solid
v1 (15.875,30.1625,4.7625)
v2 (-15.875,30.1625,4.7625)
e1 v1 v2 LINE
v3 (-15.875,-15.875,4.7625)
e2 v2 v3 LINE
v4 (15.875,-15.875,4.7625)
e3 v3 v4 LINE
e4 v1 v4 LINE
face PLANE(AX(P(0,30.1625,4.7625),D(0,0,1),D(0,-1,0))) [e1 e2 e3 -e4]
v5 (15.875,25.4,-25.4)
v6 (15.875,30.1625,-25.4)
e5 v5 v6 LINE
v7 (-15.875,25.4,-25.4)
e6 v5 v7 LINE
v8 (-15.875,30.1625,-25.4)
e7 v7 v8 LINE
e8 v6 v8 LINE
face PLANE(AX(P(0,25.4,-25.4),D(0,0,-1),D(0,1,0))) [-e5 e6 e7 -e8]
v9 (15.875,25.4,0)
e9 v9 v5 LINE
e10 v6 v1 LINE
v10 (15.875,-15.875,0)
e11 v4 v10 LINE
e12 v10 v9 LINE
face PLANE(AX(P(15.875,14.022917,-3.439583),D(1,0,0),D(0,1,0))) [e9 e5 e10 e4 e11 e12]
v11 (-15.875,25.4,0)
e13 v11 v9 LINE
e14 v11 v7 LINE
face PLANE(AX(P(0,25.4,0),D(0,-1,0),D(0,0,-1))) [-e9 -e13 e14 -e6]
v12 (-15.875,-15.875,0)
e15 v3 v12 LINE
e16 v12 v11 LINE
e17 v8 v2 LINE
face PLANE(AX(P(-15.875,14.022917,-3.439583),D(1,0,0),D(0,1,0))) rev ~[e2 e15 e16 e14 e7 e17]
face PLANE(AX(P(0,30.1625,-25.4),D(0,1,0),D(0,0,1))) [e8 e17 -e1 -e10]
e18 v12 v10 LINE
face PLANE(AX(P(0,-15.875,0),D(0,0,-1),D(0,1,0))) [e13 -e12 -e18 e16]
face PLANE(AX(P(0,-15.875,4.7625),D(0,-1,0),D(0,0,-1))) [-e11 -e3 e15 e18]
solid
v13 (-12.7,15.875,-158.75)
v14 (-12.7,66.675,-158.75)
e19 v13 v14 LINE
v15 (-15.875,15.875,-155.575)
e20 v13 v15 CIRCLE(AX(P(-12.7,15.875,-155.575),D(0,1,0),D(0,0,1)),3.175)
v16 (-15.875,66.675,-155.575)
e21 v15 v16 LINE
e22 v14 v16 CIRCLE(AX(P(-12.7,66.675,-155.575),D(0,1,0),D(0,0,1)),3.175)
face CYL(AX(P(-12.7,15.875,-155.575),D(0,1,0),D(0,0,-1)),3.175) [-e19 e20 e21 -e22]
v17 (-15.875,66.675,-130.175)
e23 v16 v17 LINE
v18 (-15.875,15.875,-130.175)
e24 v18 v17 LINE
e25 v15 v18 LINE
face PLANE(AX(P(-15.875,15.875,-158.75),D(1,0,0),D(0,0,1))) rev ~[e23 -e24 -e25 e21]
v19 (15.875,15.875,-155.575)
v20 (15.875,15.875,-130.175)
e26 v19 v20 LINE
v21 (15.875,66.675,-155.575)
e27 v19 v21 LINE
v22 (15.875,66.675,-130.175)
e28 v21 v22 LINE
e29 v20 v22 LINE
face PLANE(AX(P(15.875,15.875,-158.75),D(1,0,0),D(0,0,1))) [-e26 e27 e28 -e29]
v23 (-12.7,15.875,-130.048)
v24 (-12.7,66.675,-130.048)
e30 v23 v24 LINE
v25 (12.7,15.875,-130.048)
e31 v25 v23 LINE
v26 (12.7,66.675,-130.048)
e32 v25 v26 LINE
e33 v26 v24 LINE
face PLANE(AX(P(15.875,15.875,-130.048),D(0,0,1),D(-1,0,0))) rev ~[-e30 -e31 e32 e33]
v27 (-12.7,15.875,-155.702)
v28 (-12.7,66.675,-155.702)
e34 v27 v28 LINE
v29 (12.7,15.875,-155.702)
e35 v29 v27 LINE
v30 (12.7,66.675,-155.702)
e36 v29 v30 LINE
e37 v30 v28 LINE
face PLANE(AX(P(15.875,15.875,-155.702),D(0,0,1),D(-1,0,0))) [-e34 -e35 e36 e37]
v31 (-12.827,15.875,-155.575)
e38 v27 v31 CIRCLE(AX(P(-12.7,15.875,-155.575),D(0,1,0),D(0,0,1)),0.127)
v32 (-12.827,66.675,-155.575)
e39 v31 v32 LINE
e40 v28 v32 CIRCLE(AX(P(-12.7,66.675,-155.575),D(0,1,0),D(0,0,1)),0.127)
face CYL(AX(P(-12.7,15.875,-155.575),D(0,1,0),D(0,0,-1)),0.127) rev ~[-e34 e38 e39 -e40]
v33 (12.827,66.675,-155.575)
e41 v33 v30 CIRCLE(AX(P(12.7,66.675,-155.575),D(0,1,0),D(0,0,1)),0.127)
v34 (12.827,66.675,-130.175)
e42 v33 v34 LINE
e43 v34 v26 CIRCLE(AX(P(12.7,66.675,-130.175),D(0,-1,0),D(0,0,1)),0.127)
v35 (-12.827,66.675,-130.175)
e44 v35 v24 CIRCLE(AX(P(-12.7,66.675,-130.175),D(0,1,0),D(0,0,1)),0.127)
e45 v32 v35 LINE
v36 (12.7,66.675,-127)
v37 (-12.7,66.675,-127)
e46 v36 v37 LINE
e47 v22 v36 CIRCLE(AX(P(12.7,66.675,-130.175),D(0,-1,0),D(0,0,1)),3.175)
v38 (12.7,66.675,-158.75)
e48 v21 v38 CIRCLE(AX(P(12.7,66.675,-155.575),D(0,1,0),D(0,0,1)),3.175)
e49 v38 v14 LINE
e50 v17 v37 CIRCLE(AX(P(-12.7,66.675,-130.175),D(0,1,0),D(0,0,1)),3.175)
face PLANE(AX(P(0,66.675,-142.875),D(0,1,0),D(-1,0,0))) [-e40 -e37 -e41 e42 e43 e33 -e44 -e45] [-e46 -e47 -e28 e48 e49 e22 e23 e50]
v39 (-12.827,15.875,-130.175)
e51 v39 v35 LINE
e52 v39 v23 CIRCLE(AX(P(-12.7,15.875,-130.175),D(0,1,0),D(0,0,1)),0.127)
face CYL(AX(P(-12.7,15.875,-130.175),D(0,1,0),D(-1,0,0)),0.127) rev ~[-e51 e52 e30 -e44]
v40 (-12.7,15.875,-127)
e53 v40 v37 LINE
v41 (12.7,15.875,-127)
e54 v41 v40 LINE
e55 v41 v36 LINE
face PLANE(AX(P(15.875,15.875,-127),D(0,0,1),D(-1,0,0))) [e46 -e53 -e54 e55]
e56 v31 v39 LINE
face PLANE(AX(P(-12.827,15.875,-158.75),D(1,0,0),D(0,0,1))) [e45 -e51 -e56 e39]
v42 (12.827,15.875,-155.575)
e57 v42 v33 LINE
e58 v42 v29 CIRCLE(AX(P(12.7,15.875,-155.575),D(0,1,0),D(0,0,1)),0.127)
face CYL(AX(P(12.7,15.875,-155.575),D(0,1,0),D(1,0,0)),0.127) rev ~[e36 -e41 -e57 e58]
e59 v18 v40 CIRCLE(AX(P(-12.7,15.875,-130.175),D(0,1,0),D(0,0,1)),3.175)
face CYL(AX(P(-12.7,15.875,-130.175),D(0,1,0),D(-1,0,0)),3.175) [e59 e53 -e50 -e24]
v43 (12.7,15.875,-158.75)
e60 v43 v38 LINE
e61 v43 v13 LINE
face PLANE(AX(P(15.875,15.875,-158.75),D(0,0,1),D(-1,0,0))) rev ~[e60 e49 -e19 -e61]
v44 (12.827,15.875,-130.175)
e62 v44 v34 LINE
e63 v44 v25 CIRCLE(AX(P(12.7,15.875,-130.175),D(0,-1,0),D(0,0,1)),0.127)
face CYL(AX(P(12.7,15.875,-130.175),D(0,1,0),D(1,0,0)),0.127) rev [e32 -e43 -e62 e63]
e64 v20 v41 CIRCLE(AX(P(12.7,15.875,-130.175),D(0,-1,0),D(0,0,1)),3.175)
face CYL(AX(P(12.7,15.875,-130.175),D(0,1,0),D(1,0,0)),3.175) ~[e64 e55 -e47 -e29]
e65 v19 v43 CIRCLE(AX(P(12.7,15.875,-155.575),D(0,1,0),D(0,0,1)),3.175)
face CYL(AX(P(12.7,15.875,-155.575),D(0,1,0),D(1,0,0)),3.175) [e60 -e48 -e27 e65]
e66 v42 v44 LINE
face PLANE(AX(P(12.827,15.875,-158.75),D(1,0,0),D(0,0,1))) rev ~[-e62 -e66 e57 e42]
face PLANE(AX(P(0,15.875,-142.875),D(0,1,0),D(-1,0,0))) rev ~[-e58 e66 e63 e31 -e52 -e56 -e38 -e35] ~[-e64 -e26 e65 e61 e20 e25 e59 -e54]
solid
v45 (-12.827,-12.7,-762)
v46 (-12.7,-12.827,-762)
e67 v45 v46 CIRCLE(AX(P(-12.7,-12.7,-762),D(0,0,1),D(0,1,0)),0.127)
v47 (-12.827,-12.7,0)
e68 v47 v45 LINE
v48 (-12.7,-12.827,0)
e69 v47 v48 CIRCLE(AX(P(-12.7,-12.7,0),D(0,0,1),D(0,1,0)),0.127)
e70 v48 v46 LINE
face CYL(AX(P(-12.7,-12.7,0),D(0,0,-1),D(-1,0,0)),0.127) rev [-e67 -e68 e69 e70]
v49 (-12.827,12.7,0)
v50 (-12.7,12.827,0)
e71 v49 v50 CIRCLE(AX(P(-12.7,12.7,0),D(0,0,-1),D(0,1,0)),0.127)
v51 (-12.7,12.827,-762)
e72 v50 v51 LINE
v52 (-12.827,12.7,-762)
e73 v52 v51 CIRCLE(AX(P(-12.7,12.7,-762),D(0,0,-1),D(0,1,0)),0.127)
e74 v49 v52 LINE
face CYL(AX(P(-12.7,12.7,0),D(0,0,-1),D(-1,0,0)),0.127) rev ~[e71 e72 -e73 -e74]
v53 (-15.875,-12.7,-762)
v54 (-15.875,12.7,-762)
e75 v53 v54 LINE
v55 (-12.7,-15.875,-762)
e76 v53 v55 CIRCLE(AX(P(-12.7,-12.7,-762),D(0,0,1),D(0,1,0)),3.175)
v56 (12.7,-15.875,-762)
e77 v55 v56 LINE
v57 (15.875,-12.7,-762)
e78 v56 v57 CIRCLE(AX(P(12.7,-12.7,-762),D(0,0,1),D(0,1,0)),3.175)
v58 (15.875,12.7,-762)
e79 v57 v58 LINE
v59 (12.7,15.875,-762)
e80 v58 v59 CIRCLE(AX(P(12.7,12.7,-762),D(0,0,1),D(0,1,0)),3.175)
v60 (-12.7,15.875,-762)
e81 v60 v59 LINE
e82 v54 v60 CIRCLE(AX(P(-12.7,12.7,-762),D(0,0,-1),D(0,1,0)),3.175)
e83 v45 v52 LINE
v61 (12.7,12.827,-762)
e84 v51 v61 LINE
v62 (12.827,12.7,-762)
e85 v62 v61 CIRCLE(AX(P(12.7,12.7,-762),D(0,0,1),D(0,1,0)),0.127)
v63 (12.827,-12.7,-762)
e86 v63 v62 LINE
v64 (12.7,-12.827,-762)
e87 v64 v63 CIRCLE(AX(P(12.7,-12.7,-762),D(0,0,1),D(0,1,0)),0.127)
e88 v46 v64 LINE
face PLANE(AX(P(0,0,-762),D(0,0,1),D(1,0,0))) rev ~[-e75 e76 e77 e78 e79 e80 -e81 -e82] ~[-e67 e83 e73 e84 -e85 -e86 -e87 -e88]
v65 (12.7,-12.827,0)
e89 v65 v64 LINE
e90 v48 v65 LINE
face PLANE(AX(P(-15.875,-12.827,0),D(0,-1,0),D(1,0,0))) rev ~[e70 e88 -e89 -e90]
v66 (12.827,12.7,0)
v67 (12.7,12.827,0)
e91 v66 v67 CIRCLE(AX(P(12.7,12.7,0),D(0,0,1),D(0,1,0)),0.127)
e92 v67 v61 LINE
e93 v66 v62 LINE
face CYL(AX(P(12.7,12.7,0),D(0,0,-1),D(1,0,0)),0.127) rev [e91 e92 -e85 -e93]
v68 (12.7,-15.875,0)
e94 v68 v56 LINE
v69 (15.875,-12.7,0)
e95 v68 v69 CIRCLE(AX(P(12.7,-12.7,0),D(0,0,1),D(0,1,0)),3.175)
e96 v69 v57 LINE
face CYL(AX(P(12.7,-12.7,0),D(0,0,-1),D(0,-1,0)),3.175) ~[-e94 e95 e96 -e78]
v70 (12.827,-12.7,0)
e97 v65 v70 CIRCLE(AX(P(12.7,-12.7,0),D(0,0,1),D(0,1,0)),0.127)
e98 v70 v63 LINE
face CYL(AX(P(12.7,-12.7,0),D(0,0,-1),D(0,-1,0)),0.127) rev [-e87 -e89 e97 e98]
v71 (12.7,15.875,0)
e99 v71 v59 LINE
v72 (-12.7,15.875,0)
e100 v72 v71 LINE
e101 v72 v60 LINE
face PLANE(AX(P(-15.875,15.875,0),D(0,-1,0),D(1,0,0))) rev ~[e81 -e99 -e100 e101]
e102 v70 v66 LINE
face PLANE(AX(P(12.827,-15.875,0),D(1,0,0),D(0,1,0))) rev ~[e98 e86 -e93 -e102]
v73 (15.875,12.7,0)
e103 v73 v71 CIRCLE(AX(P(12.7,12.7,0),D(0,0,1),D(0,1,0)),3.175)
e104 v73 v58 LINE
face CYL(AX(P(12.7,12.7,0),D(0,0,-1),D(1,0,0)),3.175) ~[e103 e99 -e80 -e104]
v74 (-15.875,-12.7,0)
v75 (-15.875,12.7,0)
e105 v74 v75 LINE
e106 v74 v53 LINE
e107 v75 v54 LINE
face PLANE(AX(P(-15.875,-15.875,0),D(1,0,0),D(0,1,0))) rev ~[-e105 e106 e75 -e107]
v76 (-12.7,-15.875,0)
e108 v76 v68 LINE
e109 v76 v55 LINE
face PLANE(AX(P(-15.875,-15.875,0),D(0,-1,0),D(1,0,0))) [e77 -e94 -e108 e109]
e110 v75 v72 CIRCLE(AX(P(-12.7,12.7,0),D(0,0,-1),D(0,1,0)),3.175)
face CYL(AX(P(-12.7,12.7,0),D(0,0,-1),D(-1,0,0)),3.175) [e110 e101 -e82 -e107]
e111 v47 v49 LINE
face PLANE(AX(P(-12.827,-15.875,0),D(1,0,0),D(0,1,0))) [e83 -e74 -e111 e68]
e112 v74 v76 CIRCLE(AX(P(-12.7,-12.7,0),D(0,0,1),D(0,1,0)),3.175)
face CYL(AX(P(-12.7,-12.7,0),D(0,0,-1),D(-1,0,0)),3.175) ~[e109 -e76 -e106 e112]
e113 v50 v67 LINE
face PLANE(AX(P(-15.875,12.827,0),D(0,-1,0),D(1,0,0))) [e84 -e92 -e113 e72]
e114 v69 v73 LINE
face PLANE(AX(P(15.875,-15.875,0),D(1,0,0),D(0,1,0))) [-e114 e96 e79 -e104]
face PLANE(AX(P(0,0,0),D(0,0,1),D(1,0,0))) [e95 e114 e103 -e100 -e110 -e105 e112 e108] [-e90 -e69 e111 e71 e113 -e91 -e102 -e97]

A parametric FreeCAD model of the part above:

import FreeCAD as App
import Part
import Sketcher
from FreeCAD import Vector
Q = App.Units.Quantity


def edges_at(feature, points):
    """Names of the edges that pass closest to the given points."""
    edges = feature.Shape.Edges
    near = lambda p: min(range(len(edges)), key=lambda i: edges[i].distToShape(Part.Vertex(*p))[0])
    return sorted({f"Edge{near(p) + 1}" for p in points})


def faces_at(feature, points):
    """Names of the faces that lie closest to the given points."""
    faces = feature.Shape.Faces
    near = lambda p: min(range(len(faces)), key=lambda i: faces[i].distToShape(Part.Vertex(*p))[0])
    return sorted({f"Face{near(p) + 1}" for p in points})

doc = App.newDocument("Part")
body = doc.addObject("PartDesign::Body", "Body")

sketch1 = doc.addObject("Sketcher::SketchObject", "Sketch")
body.addObject(sketch1)
sketch1.AttachmentSupport = (doc.XY_Plane, [""])
sketch1.MapMode = "FlatFace"
sketch1.addGeometry([
    Part.LineSegment(Vector(-16, 16, 0), Vector(-16, -16, 0)),
    Part.LineSegment(Vector(-16, -16, 0), Vector(16, -16, 0)),
    Part.LineSegment(Vector(16, -16, 0), Vector(16, 16, 0)),
    Part.LineSegment(Vector(16, 16, 0), Vector(-16, 16, 0)),
], False)
sketch1.addConstraint([
    Sketcher.Constraint("Coincident", 0, 2, 1, 1),
    Sketcher.Constraint("Coincident", 1, 2, 2, 1),
    Sketcher.Constraint("Coincident", 2, 2, 3, 1),
    Sketcher.Constraint("Coincident", 3, 2, 0, 1),
    Sketcher.Constraint("Vertical", 0),
    Sketcher.Constraint("Horizontal", 1),
    Sketcher.Constraint("Vertical", 2),
    Sketcher.Constraint("Horizontal", 3),
    Sketcher.Constraint("Symmetric", 0, 2, 2, 2, -1, 1),
    Sketcher.Constraint("Equal", 3, 0),
    Sketcher.Constraint("DistanceX", 1, 1, 1, 2, Q("1.25 in")),
])
pad1 = doc.addObject("PartDesign::Pad", "Pad")
body.addObject(pad1)
pad1.Profile = sketch1
pad1.Length = Q("30 in")
pad1.Reversed = True
doc.recompute()

fillet = doc.addObject("PartDesign::Fillet", "Fillet")
body.addObject(fillet)
fillet.Base = (pad1, edges_at(pad1, [
    (-15.875, 15.875, -381),
    (-15.875, -15.875, -381),
    (15.875, 15.875, -381),
    (15.875, -15.875, -381),
]))
fillet.Radius = Q("0.125 in")
doc.recompute()

thickness = doc.addObject("PartDesign::Thickness", "Thickness")
body.addObject(thickness)
thickness.Base = (fillet, faces_at(fillet, [(0, 0, 0), (0, 0, -762)]))
thickness.Value = Q("0.12 in")
thickness.Reversed = True
thickness.Join = "Arc"
body2 = doc.addObject("PartDesign::Body", "Body001")

sketch2 = doc.addObject("Sketcher::SketchObject", "Sketch001")
body2.addObject(sketch2)
sketch2.AttachmentSupport = (doc.getObject("YZ_Plane001"), [""])
sketch2.MapMode = "FlatFace"
sketch2.addGeometry([
    Part.LineSegment(Vector(30.2, 4.8, 0), Vector(-15.9, 4.8, 0)),
    Part.LineSegment(Vector(-15.9, 4.8, 0), Vector(-15.9, 0, 0)),
    Part.LineSegment(Vector(-15.9, 0, 0), Vector(25.4, 0, 0)),
    Part.LineSegment(Vector(25.4, 0, 0), Vector(25.4, -25.4, 0)),
    Part.LineSegment(Vector(25.4, -25.4, 0), Vector(30.2, -25.4, 0)),
    Part.LineSegment(Vector(30.2, -25.4, 0), Vector(30.2, 4.8, 0)),
], False)
sketch2.addConstraint([
    Sketcher.Constraint("Coincident", 0, 2, 1, 1),
    Sketcher.Constraint("Coincident", 1, 2, 2, 1),
    Sketcher.Constraint("Coincident", 2, 2, 3, 1),
    Sketcher.Constraint("Coincident", 3, 2, 4, 1),
    Sketcher.Constraint("Coincident", 4, 2, 5, 1),
    Sketcher.Constraint("Coincident", 5, 2, 0, 1),
    Sketcher.Constraint("Horizontal", 0),
    Sketcher.Constraint("Vertical", 1),
    Sketcher.Constraint("Horizontal", 2),
    Sketcher.Constraint("Vertical", 3),
    Sketcher.Constraint("Horizontal", 4),
    Sketcher.Constraint("Vertical", 5),
    Sketcher.Constraint("PointOnObject", 1, 2, -1),
    Sketcher.Constraint("Equal", 4, 1),
    Sketcher.Constraint("DistanceY", 3, 2, 3, 1, Q("1 in")),
    Sketcher.Constraint("DistanceX", -1, 1, 2, 2, Q("1 in")),
    Sketcher.Constraint("DistanceX", 0, 2, 0, 1, Q("1.8125 in")),
    Sketcher.Constraint("DistanceX", 2, 1, 2, 2, Q("1.625 in")),
])
pad2 = doc.addObject("PartDesign::Pad", "Pad001")
body2.addObject(pad2)
pad2.Profile = sketch2
pad2.Length = Q("1.25 in")
pad2.Midplane = True
body3 = doc.addObject("PartDesign::Body", "Body002")

sketch3 = doc.addObject("Sketcher::SketchObject", "Sketch002")
body3.addObject(sketch3)
sketch3.AttachmentSupport = (doc.getObject("XZ_Plane002"), [""])
sketch3.MapMode = "FlatFace"
sketch3.AttachmentOffset = App.Placement(Vector(0, 0, -0.625 * 25.4), App.Rotation())
sketch3.addGeometry([
    Part.LineSegment(Vector(16, -127, 0), Vector(16, -159, 0)),
    Part.LineSegment(Vector(16, -159, 0), Vector(-16, -159, 0)),
    Part.LineSegment(Vector(-16, -159, 0), Vector(-16, -127, 0)),
    Part.LineSegment(Vector(-16, -127, 0), Vector(16, -127, 0)),
], False)
sketch3.addConstraint([
    Sketcher.Constraint("Coincident", 0, 2, 1, 1),
    Sketcher.Constraint("Coincident", 1, 2, 2, 1),
    Sketcher.Constraint("Coincident", 2, 2, 3, 1),
    Sketcher.Constraint("Coincident", 3, 2, 0, 1),
    Sketcher.Constraint("Vertical", 0),
    Sketcher.Constraint("Horizontal", 1),
    Sketcher.Constraint("Vertical", 2),
    Sketcher.Constraint("Horizontal", 3),
    Sketcher.Constraint("Equal", 3, 0),
    Sketcher.Constraint("DistanceY", 2, 2, -1, 1, Q("5 in")),
    Sketcher.Constraint("DistanceX", 1, 2, 1, 1, Q("1.25 in")),
    Sketcher.Constraint("DistanceX", -1, 1, 0, 2, Q("0.625 in")),
])
pad3 = doc.addObject("PartDesign::Pad", "Pad002")
body3.addObject(pad3)
pad3.Profile = sketch3
pad3.Length = Q("2 in")
pad3.Reversed = True
doc.recompute()

fillet2 = doc.addObject("PartDesign::Fillet", "Fillet001")
body3.addObject(fillet2)
fillet2.Base = (pad3, edges_at(pad3, [
    (-15.875, 41.275, -127),
    (-15.875, 41.275, -158.75),
    (15.875, 41.275, -127),
    (15.875, 41.275, -158.75),
]))
fillet2.Radius = Q("0.125 in")
doc.recompute()

thickness2 = doc.addObject("PartDesign::Thickness", "Thickness001")
body3.addObject(thickness2)
thickness2.Base = (fillet2, faces_at(fillet2, [(0, 66.675, -142.875), (0, 15.875, -142.875)]))
thickness2.Value = Q("0.12 in")
thickness2.Reversed = True
thickness2.Join = "Arc"

doc.recompute()
